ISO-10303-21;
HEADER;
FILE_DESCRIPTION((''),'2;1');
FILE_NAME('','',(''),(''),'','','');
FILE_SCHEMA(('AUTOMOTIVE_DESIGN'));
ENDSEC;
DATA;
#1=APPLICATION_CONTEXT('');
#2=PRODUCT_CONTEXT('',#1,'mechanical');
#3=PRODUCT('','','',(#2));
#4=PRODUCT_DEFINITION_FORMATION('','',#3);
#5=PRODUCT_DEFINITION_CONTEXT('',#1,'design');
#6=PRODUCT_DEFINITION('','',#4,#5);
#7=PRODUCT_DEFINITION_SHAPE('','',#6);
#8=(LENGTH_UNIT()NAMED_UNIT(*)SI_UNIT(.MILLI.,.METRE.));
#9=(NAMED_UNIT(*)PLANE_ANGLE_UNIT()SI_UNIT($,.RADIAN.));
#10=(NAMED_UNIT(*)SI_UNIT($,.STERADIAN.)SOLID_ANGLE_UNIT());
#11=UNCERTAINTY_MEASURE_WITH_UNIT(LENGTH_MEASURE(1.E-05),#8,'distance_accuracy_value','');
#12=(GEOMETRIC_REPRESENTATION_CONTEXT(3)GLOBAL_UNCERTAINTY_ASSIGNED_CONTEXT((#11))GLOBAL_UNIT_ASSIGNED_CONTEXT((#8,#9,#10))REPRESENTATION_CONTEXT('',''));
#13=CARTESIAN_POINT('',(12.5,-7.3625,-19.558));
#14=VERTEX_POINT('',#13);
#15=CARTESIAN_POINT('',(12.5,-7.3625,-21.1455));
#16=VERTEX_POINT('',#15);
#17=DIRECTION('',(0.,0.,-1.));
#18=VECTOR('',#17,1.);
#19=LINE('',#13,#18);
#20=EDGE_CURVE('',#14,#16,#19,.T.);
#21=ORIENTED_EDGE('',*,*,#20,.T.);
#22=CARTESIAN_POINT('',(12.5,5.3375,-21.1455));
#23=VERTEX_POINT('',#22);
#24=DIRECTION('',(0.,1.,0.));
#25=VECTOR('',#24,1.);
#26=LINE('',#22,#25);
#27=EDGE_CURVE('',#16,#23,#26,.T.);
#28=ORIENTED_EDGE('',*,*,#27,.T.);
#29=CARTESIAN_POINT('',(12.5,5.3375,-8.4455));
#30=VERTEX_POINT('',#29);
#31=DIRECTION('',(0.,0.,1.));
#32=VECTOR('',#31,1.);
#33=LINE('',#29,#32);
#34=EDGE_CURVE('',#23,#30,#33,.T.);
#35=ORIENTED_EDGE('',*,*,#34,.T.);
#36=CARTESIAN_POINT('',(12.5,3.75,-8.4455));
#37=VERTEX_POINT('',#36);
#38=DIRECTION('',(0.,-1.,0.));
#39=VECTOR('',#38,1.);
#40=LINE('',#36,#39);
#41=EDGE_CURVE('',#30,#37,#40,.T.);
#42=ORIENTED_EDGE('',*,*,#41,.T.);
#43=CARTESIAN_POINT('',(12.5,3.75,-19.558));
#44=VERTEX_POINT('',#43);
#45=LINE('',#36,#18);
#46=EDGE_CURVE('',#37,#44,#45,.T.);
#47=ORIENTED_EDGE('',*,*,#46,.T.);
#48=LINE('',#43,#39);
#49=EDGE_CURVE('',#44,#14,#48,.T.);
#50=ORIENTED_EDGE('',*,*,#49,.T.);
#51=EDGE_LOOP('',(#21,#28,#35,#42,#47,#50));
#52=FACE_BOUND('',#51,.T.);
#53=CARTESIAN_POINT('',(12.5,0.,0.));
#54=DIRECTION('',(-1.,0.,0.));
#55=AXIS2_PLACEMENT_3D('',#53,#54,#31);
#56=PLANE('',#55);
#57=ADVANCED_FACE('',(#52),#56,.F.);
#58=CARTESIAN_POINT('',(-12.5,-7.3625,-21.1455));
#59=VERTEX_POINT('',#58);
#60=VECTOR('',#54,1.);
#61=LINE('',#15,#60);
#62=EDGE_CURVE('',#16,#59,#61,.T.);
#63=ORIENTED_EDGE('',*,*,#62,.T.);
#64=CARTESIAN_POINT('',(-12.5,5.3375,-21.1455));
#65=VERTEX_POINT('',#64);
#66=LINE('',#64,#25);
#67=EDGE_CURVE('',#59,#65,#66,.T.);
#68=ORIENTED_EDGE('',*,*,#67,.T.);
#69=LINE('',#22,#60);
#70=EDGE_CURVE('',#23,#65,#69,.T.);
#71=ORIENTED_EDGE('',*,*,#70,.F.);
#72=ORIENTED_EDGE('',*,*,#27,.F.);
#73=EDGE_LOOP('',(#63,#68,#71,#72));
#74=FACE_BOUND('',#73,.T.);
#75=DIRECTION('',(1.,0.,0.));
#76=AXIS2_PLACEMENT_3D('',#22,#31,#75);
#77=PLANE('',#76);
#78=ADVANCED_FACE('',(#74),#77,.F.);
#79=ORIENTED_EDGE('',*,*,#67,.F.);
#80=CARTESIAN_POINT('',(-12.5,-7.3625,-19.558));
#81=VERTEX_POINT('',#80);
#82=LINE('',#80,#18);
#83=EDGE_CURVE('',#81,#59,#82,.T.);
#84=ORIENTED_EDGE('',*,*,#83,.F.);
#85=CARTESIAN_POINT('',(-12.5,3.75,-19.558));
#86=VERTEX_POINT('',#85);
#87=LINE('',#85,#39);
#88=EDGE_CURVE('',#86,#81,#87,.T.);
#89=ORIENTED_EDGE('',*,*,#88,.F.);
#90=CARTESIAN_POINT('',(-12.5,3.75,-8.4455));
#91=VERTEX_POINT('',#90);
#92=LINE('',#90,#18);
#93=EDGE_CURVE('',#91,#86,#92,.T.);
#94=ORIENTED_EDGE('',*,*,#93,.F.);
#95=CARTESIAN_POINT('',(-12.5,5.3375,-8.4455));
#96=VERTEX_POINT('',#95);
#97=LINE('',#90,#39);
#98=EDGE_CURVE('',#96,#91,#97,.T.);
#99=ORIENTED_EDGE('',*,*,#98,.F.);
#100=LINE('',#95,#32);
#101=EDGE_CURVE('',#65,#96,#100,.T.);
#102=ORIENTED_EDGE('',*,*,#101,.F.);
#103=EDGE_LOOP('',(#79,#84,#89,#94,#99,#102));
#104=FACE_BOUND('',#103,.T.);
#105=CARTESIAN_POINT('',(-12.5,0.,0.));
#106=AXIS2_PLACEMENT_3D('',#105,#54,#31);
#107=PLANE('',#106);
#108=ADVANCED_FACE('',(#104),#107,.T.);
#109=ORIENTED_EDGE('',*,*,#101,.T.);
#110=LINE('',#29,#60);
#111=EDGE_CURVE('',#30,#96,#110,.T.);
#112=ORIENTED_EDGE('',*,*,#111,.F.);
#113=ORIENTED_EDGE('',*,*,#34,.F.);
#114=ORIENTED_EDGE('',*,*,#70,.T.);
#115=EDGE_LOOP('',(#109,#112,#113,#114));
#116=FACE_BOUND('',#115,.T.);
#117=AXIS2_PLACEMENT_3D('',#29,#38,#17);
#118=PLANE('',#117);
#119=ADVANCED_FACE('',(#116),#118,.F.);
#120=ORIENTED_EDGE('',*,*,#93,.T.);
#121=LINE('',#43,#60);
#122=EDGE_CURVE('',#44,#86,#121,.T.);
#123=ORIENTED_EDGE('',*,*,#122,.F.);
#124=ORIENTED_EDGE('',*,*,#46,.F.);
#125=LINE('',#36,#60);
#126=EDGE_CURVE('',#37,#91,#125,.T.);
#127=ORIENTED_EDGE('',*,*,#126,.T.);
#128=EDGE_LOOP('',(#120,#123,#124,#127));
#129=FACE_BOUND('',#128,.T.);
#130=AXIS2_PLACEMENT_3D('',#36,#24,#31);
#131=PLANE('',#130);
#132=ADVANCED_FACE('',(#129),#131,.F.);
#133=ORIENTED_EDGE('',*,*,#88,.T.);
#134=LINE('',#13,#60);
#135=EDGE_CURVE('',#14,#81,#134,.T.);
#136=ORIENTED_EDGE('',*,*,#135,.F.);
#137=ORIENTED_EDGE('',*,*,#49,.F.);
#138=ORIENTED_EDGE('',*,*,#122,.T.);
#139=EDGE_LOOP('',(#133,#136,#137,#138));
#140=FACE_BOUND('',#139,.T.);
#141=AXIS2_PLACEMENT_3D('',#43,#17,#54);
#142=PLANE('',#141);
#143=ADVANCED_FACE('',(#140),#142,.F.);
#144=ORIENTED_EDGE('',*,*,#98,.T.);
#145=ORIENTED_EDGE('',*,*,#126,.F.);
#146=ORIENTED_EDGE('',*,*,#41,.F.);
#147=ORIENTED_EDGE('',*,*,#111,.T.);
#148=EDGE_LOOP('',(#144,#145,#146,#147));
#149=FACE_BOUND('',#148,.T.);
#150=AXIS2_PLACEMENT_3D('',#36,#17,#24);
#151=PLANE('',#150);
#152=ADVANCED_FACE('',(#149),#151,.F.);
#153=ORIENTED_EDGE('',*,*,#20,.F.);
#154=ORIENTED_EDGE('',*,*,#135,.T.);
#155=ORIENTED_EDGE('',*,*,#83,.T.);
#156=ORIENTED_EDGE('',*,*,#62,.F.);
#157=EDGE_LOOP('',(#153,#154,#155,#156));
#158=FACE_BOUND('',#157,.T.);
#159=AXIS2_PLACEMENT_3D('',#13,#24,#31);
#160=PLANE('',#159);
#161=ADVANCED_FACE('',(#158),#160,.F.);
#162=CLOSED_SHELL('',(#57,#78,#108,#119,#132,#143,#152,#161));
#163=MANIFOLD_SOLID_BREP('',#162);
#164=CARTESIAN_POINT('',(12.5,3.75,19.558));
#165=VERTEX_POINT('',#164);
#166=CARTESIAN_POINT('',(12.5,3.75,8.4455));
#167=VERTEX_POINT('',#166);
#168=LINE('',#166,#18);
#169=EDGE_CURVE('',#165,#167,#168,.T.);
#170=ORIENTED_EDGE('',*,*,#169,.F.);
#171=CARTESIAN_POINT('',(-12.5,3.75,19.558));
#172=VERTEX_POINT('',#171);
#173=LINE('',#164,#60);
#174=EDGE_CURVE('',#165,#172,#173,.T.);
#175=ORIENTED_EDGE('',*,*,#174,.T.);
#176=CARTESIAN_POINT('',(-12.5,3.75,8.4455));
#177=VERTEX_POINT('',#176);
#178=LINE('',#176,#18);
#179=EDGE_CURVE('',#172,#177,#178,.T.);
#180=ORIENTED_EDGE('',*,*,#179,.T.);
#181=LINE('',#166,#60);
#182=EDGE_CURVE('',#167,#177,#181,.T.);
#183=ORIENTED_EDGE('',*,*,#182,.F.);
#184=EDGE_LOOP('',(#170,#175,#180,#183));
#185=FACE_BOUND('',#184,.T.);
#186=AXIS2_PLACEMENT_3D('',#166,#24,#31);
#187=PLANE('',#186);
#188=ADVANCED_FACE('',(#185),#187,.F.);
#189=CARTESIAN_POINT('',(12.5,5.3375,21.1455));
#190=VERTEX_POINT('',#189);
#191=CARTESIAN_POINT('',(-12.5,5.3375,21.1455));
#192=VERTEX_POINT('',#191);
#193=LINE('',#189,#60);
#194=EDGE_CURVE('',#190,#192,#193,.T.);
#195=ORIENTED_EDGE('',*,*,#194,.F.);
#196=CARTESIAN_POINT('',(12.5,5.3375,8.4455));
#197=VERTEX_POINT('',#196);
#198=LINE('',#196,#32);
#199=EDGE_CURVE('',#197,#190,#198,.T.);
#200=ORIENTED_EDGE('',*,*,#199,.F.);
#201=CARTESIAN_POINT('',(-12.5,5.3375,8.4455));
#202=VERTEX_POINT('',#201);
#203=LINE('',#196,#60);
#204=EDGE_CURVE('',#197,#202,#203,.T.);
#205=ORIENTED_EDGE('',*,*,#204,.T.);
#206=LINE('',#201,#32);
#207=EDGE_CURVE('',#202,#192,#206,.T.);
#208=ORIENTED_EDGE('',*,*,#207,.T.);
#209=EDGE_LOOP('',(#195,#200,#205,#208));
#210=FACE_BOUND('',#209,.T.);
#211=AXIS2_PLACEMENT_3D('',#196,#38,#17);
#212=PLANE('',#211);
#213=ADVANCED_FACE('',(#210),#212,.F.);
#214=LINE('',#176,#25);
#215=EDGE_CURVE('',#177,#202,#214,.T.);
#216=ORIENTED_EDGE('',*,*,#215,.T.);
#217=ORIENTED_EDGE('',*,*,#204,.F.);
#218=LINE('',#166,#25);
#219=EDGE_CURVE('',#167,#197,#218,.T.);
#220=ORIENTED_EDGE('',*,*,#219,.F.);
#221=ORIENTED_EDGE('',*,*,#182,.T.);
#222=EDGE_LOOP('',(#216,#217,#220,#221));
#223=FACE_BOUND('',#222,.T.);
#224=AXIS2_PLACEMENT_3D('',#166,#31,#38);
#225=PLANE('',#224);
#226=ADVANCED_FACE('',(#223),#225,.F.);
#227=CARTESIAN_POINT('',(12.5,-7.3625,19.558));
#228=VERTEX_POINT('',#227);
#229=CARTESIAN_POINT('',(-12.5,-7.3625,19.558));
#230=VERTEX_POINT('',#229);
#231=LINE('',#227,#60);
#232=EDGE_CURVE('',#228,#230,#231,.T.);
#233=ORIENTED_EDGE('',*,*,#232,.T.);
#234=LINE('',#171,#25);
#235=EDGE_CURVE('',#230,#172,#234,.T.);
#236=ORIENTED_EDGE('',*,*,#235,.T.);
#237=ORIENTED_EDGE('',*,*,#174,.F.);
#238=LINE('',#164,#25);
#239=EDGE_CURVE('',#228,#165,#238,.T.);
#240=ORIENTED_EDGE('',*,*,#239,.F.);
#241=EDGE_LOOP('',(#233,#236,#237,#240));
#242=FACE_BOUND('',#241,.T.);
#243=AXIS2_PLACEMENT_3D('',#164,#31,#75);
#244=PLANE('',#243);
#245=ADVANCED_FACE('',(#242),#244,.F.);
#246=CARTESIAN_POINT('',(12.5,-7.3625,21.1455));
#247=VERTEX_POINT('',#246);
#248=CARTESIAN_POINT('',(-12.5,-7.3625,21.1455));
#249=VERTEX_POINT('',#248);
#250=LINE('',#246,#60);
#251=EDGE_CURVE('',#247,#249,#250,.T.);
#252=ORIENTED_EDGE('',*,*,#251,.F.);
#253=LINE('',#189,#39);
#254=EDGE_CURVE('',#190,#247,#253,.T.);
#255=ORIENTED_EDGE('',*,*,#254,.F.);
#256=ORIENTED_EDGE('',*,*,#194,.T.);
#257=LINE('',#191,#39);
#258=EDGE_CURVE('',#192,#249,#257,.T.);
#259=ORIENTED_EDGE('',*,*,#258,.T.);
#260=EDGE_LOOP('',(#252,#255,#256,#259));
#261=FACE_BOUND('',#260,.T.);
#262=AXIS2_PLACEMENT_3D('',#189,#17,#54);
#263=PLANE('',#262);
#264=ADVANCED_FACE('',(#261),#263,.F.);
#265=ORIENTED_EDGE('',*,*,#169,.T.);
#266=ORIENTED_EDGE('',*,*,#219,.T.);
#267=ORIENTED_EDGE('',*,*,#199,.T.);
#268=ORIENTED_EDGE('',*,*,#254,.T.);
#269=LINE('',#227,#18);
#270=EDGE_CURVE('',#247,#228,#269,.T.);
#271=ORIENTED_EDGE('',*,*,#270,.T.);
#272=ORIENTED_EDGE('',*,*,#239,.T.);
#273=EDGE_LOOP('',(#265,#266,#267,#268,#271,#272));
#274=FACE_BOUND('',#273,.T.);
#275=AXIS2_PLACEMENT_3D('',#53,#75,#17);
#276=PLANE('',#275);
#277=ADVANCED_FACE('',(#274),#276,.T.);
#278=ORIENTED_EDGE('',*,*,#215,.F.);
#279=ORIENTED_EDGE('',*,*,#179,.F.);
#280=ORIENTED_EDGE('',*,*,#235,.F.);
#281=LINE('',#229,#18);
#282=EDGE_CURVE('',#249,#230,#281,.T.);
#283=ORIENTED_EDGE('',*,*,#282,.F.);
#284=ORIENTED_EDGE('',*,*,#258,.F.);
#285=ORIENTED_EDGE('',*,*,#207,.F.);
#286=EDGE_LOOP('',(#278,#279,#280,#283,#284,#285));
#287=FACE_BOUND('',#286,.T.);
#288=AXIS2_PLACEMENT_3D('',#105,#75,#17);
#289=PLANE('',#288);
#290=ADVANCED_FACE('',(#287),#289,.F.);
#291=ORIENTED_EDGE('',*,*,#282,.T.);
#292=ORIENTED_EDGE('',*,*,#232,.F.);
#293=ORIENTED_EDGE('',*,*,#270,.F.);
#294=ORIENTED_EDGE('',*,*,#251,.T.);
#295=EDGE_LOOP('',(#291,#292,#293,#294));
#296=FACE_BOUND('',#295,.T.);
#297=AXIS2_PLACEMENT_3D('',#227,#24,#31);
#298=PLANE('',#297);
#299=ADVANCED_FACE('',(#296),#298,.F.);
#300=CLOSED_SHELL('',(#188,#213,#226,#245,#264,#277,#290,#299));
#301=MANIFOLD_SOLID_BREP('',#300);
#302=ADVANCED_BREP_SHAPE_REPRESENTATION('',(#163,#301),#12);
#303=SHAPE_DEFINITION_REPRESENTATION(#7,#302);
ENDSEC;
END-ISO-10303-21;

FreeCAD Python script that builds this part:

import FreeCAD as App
import Part
import Sketcher
Q = App.Units.Quantity


def add_polygon(sketch, points):
    """Adds a closed chain of lines whose ends are joined by coincident constraints."""
    first, n = sketch.GeometryCount, len(points)
    for a, b in zip(points, points[1:] + points[:1]):
        sketch.addGeometry(Part.LineSegment(App.Vector(*a, 0), App.Vector(*b, 0)), False)
    for i in range(n):
        sketch.addConstraint(Sketcher.Constraint("Coincident", first + i, 2, first + (i + 1) % n, 1))

doc = App.newDocument("Part")
body = doc.addObject("PartDesign::Body", "Body")

sketch1 = doc.addObject("Sketcher::SketchObject", "Sketch")
body.addObject(sketch1)
sketch1.AttachmentSupport = (doc.YZ_Plane, [""])
sketch1.MapMode = "FlatFace"
add_polygon(sketch1, [(3.75, -8.4455), (3.75, -19.558), (-7.3625, -19.558), (-7.3625, -21.1455), (5.3375, -21.1455), (5.3375, -8.4455)])
sketch1.addConstraint(Sketcher.Constraint("Vertical", 0))
sketch1.addConstraint(Sketcher.Constraint("Horizontal", 1))
sketch1.addConstraint(Sketcher.Constraint("Vertical", 2))
sketch1.addConstraint(Sketcher.Constraint("Horizontal", 3))
sketch1.addConstraint(Sketcher.Constraint("Vertical", 4))
sketch1.addConstraint(Sketcher.Constraint("Horizontal", 5))
sketch1.addConstraint(Sketcher.Constraint("Equal", 1, 0))
sketch1.addConstraint(Sketcher.Constraint("Equal", 5, 2))
sketch1.addConstraint(Sketcher.Constraint("DistanceX", 3, 1, 3, 2, Q("0.5 in")))
sketch1.addConstraint(Sketcher.Constraint("DistanceX", 1, 2, 1, 1, Q("0.4375 in")))
sketch1.addConstraint(Sketcher.Constraint("DistanceY", 0, 2, -1, 1, Q("0.77 in")))
sketch1.addConstraint(Sketcher.Constraint("DistanceX", -1, 1, 0, 2, Q("3.75 mm")))
pad1 = doc.addObject("PartDesign::Pad", "Pad")
body.addObject(pad1)
pad1.Profile = sketch1
pad1.Length = 25
pad1.Midplane = True
body2 = doc.addObject("PartDesign::Body", "Body001")

sketch2 = doc.addObject("Sketcher::SketchObject", "Sketch001")
body2.addObject(sketch2)
sketch2.AttachmentSupport = (doc.getObject("YZ_Plane001"), [""])
sketch2.MapMode = "FlatFace"
add_polygon(sketch2, [(5.3375, 21.1455), (-7.3625, 21.1455), (-7.3625, 19.558), (3.75, 19.558), (3.75, 8.4455), (5.3375, 8.4455)])
sketch2.addConstraint(Sketcher.Constraint("Horizontal", 0))
sketch2.addConstraint(Sketcher.Constraint("Vertical", 1))
sketch2.addConstraint(Sketcher.Constraint("Horizontal", 2))
sketch2.addConstraint(Sketcher.Constraint("Vertical", 3))
sketch2.addConstraint(Sketcher.Constraint("Horizontal", 4))
sketch2.addConstraint(Sketcher.Constraint("Vertical", 5))
sketch2.addConstraint(Sketcher.Constraint("Equal", 4, 1))
sketch2.addConstraint(Sketcher.Constraint("Equal", 2, 3))
sketch2.addConstraint(Sketcher.Constraint("DistanceX", 0, 2, 0, 1, Q("0.5 in")))
sketch2.addConstraint(Sketcher.Constraint("DistanceX", 2, 1, 2, 2, Q("0.4375 in")))
sketch2.addConstraint(Sketcher.Constraint("DistanceY", -1, 1, 1, 2, Q("0.77 in")))
sketch2.addConstraint(Sketcher.Constraint("DistanceX", 0, 2, -1, 1, Q("7.3625 mm")))
pad2 = doc.addObject("PartDesign::Pad", "Pad001")
body2.addObject(pad2)
pad2.Profile = sketch2
pad2.Length = 25
pad2.Midplane = True

doc.recompute()
